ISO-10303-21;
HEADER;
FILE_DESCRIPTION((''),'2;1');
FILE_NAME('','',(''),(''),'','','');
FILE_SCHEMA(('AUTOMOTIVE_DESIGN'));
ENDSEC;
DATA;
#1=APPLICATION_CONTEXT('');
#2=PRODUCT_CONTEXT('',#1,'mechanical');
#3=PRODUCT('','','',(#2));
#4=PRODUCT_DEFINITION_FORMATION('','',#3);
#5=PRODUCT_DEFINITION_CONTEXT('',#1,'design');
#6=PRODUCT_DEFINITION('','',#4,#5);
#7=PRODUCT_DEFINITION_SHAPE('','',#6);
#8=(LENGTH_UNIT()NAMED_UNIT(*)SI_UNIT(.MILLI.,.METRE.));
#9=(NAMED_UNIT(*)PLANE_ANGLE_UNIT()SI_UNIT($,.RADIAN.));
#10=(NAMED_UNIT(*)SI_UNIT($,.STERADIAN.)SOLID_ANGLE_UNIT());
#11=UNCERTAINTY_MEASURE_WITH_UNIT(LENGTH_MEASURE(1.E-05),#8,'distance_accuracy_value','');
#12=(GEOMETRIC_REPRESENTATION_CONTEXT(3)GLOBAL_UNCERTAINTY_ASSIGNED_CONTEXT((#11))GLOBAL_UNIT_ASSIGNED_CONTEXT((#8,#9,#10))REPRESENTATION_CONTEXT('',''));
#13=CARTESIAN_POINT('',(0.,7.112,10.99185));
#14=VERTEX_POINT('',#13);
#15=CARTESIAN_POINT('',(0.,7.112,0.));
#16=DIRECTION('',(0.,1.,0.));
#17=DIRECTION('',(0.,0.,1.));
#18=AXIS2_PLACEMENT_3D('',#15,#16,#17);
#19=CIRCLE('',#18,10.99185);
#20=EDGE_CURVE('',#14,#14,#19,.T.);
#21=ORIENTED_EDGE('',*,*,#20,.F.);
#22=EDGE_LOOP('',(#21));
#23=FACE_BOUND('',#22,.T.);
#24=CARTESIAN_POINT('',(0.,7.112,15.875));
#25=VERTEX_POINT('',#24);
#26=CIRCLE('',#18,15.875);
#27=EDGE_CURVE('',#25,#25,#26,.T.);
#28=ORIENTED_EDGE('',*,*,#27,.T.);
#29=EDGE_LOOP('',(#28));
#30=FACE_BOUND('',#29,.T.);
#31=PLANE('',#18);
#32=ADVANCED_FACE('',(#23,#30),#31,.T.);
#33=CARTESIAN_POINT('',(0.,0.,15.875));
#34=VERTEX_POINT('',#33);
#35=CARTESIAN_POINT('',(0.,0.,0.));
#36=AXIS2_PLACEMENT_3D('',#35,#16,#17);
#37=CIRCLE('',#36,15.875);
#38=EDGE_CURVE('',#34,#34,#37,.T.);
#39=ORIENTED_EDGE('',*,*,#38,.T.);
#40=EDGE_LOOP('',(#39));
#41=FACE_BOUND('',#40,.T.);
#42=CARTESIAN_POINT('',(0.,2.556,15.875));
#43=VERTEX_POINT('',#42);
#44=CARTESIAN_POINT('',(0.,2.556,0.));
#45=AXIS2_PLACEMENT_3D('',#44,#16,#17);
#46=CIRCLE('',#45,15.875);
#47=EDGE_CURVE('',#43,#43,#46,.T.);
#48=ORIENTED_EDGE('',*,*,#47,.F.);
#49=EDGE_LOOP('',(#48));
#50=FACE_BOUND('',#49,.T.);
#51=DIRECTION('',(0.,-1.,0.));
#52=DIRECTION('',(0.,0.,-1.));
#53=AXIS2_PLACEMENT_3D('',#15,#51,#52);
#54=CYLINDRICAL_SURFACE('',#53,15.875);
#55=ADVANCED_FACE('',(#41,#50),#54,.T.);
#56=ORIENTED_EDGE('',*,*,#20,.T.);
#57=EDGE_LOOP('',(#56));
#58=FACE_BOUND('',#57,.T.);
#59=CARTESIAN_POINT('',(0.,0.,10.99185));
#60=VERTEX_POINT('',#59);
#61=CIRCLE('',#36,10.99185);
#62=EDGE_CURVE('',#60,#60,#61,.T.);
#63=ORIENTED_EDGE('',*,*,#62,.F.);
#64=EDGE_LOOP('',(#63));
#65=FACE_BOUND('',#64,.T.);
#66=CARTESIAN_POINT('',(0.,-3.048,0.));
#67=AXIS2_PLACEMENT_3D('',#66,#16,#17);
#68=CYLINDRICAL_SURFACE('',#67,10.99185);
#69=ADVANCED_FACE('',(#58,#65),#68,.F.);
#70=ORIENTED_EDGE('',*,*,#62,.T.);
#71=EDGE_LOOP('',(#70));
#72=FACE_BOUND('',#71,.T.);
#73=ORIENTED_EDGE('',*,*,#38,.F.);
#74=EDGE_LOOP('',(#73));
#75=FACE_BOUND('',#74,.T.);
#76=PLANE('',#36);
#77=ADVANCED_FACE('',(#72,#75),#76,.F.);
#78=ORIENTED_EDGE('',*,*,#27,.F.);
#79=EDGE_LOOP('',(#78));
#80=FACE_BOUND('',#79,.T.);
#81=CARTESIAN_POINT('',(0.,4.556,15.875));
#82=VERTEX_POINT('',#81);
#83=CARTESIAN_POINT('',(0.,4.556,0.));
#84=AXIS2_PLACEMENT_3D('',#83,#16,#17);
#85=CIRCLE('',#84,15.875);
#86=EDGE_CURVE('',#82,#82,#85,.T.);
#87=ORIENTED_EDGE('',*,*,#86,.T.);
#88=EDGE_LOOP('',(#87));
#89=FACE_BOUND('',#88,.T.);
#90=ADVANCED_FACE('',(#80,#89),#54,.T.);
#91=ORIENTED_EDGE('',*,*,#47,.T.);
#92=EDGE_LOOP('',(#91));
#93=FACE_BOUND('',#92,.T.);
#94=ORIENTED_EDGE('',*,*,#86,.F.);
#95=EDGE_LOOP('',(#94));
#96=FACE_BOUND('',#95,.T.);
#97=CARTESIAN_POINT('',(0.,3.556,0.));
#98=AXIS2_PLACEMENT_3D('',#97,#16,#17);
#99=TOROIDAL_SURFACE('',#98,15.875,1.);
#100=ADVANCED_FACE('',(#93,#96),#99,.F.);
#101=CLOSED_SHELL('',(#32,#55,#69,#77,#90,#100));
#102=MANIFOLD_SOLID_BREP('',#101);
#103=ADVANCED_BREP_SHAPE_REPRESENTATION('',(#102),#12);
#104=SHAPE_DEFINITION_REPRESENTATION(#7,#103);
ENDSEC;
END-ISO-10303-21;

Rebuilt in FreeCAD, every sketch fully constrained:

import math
import FreeCAD as App
import Part
import Sketcher
Q = App.Units.Quantity

doc = App.newDocument("Part")
params = doc.addObject("Spreadsheet::Sheet", "Params")
for row, (alias, value) in enumerate([
    ("sketch1_diameter", "1.25 in"),
    ("pad1_length", "0.28 in"),
    ("groove_angle", "360 deg"),
    ("pocket1_length", "0.4 in"),
], start=1):
    params.set(f"A{row}", alias)
    params.set(f"B{row}", "=" + value)
    params.setAlias(f"B{row}", alias)

body = doc.addObject("PartDesign::Body", "Body")

# Sketch on XZ plane
sketch1 = body.newObject("Sketcher::SketchObject", "Sketch")
sketch1.AttachmentSupport = (doc.getObject("XZ_Plane"), [""])
sketch1.MapMode = "FlatFace"
sketch1.addGeometry(Part.Circle(App.Vector(0, 0, 0), App.Vector(0, 0, 1), 15.875), False)
sketch1.addConstraint([
    Sketcher.Constraint("Coincident", 0, 3, -1, 1),
    Sketcher.Constraint("Diameter", 0, Q("1.25 in")),
])
sketch1.setExpression("Constraints[1]", "Params.sketch1_diameter")
pad1 = body.newObject("PartDesign::Pad", "Pad")
pad1.Profile = sketch1
pad1.setExpression("Length", "Params.pad1_length")
pad1.Reversed = True

# Sketch on XY plane
sketch2 = body.newObject("Sketcher::SketchObject", "Sketch001")
sketch2.AttachmentSupport = (doc.getObject("XY_Plane"), [""])
sketch2.MapMode = "FlatFace"
sketch2.addGeometry([
    Part.LineSegment(App.Vector(-15.875, 4.556, 0), App.Vector(-15.875, 2.556, 0)),
    Part.ArcOfCircle(Part.Circle(App.Vector(-15.875, 3.556, 0), App.Vector(0, 0, 1), 1), math.radians(-90), math.radians(90)),
], False)
sketch2.addConstraint([
    Sketcher.Constraint("Coincident", 0, 1, 1, 2),
    Sketcher.Constraint("Coincident", 1, 1, 0, 2),
    Sketcher.Constraint("Vertical", 0),
    Sketcher.Constraint("Vertical", 1, 3, 0, 1),
    Sketcher.Constraint("DistanceY", -1, 1, 1, 3, Q("0.14 in")),
    Sketcher.Constraint("Radius", 1, 1.0),
    Sketcher.Constraint("DistanceX", 1, 3, -1, 1, Q("0.625 in")),
])
groove = body.newObject("PartDesign::Groove", "Groove")
groove.Profile = sketch2
groove.ReferenceAxis = (sketch2, ["V_Axis"])
groove.setExpression("Angle", "Params.groove_angle")

# Sketch on XZ plane
sketch3 = body.newObject("Sketcher::SketchObject", "Sketch002")
sketch3.AttachmentSupport = (doc.getObject("XZ_Plane"), [""])
sketch3.MapMode = "FlatFace"
sketch3.AttachmentOffset = App.Placement(App.Vector(0, 0, -0.28 * 25.4), App.Rotation())
sketch3.addGeometry(Part.Circle(App.Vector(0, 0, 0), App.Vector(0, 0, 1), 10.99185), False)
sketch3.addConstraint([
    Sketcher.Constraint("Coincident", 0, 3, -1, 1),
    Sketcher.Constraint("Diameter", 0, Q("0.8655 in")),
])
pocket1 = body.newObject("PartDesign::Pocket", "Pocket")
pocket1.Profile = sketch3
pocket1.setExpression("Length", "Params.pocket1_length")
pocket1.Reversed = True

doc.recompute()
